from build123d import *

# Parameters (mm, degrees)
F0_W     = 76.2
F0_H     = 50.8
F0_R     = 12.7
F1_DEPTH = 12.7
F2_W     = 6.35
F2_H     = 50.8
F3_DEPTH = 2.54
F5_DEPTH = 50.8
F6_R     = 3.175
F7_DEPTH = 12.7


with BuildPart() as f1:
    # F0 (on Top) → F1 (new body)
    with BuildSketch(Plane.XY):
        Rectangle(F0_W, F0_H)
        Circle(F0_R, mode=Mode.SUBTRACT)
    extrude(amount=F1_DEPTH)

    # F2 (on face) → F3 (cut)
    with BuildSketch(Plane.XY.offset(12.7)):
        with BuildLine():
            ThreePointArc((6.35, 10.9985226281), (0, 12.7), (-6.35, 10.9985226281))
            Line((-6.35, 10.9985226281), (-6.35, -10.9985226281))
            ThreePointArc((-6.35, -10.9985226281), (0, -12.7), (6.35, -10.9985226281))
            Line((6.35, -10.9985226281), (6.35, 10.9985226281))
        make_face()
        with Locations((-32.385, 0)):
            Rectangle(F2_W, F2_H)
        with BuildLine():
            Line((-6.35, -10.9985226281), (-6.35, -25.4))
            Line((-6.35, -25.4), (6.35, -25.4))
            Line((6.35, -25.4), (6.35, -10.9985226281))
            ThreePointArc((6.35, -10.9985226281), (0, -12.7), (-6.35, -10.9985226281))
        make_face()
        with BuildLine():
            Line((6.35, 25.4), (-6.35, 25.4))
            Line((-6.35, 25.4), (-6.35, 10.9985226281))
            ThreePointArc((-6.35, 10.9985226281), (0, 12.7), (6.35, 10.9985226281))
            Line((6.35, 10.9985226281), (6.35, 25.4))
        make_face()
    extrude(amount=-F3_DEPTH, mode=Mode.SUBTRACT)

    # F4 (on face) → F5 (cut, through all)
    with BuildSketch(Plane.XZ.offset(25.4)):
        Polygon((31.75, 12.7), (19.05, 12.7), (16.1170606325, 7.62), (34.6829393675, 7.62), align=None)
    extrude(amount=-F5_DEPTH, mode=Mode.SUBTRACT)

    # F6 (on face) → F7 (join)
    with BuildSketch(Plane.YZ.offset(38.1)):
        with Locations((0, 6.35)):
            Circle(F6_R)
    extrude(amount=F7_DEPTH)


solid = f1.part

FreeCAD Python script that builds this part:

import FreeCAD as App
import Part
import Sketcher

V = App.Vector
Q = App.Units.Quantity

doc = App.newDocument("Part")
body = doc.addObject("PartDesign::Body", "Body")

# Sketch on XY plane
sketch1 = doc.addObject("Sketcher::SketchObject", "Sketch")
body.addObject(sketch1)
sketch1.AttachmentSupport = (doc.XY_Plane, [""])
sketch1.MapMode = "FlatFace"
sketch1.addGeometry(Part.LineSegment(V(-38, 25, 0), V(-38, -25, 0)), False)
sketch1.addGeometry(Part.LineSegment(V(-38, -25, 0), V(38, -25, 0)), False)
sketch1.addGeometry(Part.LineSegment(V(38, -25, 0), V(38, 25, 0)), False)
sketch1.addGeometry(Part.LineSegment(V(38, 25, 0), V(-38, 25, 0)), False)
sketch1.addGeometry(Part.Circle(V(0, 0, 0), V(0, 0, 1), 13), False)
sketch1.addConstraint(Sketcher.Constraint("Coincident", 0, 2, 1, 1))
sketch1.addConstraint(Sketcher.Constraint("Coincident", 1, 2, 2, 1))
sketch1.addConstraint(Sketcher.Constraint("Coincident", 2, 2, 3, 1))
sketch1.addConstraint(Sketcher.Constraint("Coincident", 3, 2, 0, 1))
sketch1.addConstraint(Sketcher.Constraint("Vertical", 0))
sketch1.addConstraint(Sketcher.Constraint("Horizontal", 1))
sketch1.addConstraint(Sketcher.Constraint("Vertical", 2))
sketch1.addConstraint(Sketcher.Constraint("Horizontal", 3))
sketch1.addConstraint(Sketcher.Constraint("Coincident", 4, 3, -1, 1))
sketch1.addConstraint(Sketcher.Constraint("Symmetric", 0, 2, 2, 2, -1, 1))
sketch1.addConstraint(Sketcher.Constraint("Diameter", 4, Q("1 in")))
sketch1.addConstraint(Sketcher.Constraint("DistanceX", 1, 1, 1, 2, Q("3 in")))
sketch1.addConstraint(Sketcher.Constraint("DistanceY", 0, 2, 0, 1, Q("2 in")))
pad1 = doc.addObject("PartDesign::Pad", "Pad")
body.addObject(pad1)
pad1.Profile = sketch1
pad1.Length = Q("0.5 in")

# Sketch on XY plane
sketch2 = doc.addObject("Sketcher::SketchObject", "Sketch001")
body.addObject(sketch2)
sketch2.AttachmentSupport = (doc.XY_Plane, [""])
sketch2.MapMode = "FlatFace"
sketch2.AttachmentOffset = App.Placement(V(0, 0, 0.5 * 25.4), App.Rotation())
sketch2.addGeometry(Part.LineSegment(V(-6, -25, 0), V(6, -25, 0)), False)
sketch2.addGeometry(Part.LineSegment(V(6, -25, 0), V(6, 25, 0)), False)
sketch2.addGeometry(Part.LineSegment(V(6, 25, 0), V(-6, 25, 0)), False)
sketch2.addGeometry(Part.LineSegment(V(-6, 25, 0), V(-6, -25, 0)), False)
sketch2.addGeometry(Part.LineSegment(V(-36, 25, 0), V(-36, -25, 0)), False)
sketch2.addGeometry(Part.LineSegment(V(-36, -25, 0), V(-29, -25, 0)), False)
sketch2.addGeometry(Part.LineSegment(V(-29, -25, 0), V(-29, 25, 0)), False)
sketch2.addGeometry(Part.LineSegment(V(-29, 25, 0), V(-36, 25, 0)), False)
sketch2.addConstraint(Sketcher.Constraint("Coincident", 0, 2, 1, 1))
sketch2.addConstraint(Sketcher.Constraint("Coincident", 1, 2, 2, 1))
sketch2.addConstraint(Sketcher.Constraint("Coincident", 2, 2, 3, 1))
sketch2.addConstraint(Sketcher.Constraint("Coincident", 3, 2, 0, 1))
sketch2.addConstraint(Sketcher.Constraint("Coincident", 4, 2, 5, 1))
sketch2.addConstraint(Sketcher.Constraint("Coincident", 5, 2, 6, 1))
sketch2.addConstraint(Sketcher.Constraint("Coincident", 6, 2, 7, 1))
sketch2.addConstraint(Sketcher.Constraint("Coincident", 7, 2, 4, 1))
sketch2.addConstraint(Sketcher.Constraint("Horizontal", 0))
sketch2.addConstraint(Sketcher.Constraint("Vertical", 1))
sketch2.addConstraint(Sketcher.Constraint("Horizontal", 2))
sketch2.addConstraint(Sketcher.Constraint("Vertical", 3))
sketch2.addConstraint(Sketcher.Constraint("Vertical", 4))
sketch2.addConstraint(Sketcher.Constraint("Horizontal", 5))
sketch2.addConstraint(Sketcher.Constraint("Vertical", 6))
sketch2.addConstraint(Sketcher.Constraint("Horizontal", 7))
sketch2.addConstraint(Sketcher.Constraint("Symmetric", 0, 2, 2, 2, -1, 1))
sketch2.addConstraint(Sketcher.Constraint("Horizontal", 3, 2, 4, 2))
sketch2.addConstraint(Sketcher.Constraint("Horizontal", 2, 2, 6, 2))
sketch2.addConstraint(Sketcher.Constraint("DistanceY", 1, 1, 1, 2, Q("2 in")))
sketch2.addConstraint(Sketcher.Constraint("DistanceX", 0, 1, 0, 2, Q("0.5 in")))
sketch2.addConstraint(Sketcher.Constraint("DistanceX", 5, 1, 5, 2, Q("0.25 in")))
sketch2.addConstraint(Sketcher.Constraint("DistanceX", 4, 2, -1, 1, Q("1.4 in")))
pocket1 = doc.addObject("PartDesign::Pocket", "Pocket")
body.addObject(pocket1)
pocket1.Profile = sketch2
pocket1.Length = Q("0.1 in")

# Sketch on XZ plane
sketch3 = doc.addObject("Sketcher::SketchObject", "Sketch002")
body.addObject(sketch3)
sketch3.AttachmentSupport = (doc.XZ_Plane, [""])
sketch3.MapMode = "FlatFace"
sketch3.AttachmentOffset = App.Placement(V(0, 0, 1 * 25.4), App.Rotation())
sketch3.addGeometry(Part.LineSegment(V(32, 13, 0), V(19, 13, 0)), False)
sketch3.addGeometry(Part.LineSegment(V(19, 13, 0), V(16, 8, 0)), False)
sketch3.addGeometry(Part.LineSegment(V(16, 8, 0), V(35, 8, 0)), False)
sketch3.addGeometry(Part.LineSegment(V(35, 8, 0), V(32, 13, 0)), False)
sketch3.addConstraint(Sketcher.Constraint("Coincident", 0, 2, 1, 1))
sketch3.addConstraint(Sketcher.Constraint("Coincident", 1, 2, 2, 1))
sketch3.addConstraint(Sketcher.Constraint("Coincident", 2, 2, 3, 1))
sketch3.addConstraint(Sketcher.Constraint("Coincident", 3, 2, 0, 1))
sketch3.addConstraint(Sketcher.Constraint("Horizontal", 0))
sketch3.addConstraint(Sketcher.Constraint("Horizontal", 2))
sketch3.addConstraint(Sketcher.Constraint("Equal", 1, 3))
sketch3.addConstraint(Sketcher.Constraint("DistanceX", 0, 2, 0, 1, Q("0.5 in")))
sketch3.addConstraint(Sketcher.Constraint("Angle", 1, Q("-120 deg")))
sketch3.addConstraint(Sketcher.Constraint("DistanceY", -1, 1, 0, 2, Q("0.5 in")))
sketch3.addConstraint(Sketcher.Constraint("DistanceY", -1, 1, 1, 2, Q("0.3 in")))
sketch3.addConstraint(Sketcher.Constraint("DistanceX", -1, 1, 0, 2, Q("0.75 in")))
pocket2 = doc.addObject("PartDesign::Pocket", "Pocket001")
body.addObject(pocket2)
pocket2.Profile = sketch3
pocket2.Type = "ThroughAll"

# Sketch on YZ plane
sketch4 = doc.addObject("Sketcher::SketchObject", "Sketch003")
body.addObject(sketch4)
sketch4.AttachmentSupport = (doc.YZ_Plane, [""])
sketch4.MapMode = "FlatFace"
sketch4.AttachmentOffset = App.Placement(V(0, 0, 1.5 * 25.4), App.Rotation())
sketch4.addGeometry(Part.Circle(V(0, 6.3, 0), V(0, 0, 1), 3.2), False)
sketch4.addConstraint(Sketcher.Constraint("PointOnObject", 0, 3, -2))
sketch4.addConstraint(Sketcher.Constraint("Diameter", 0, Q("0.25 in")))
sketch4.addConstraint(Sketcher.Constraint("DistanceY", -1, 1, 0, 3, Q("0.25 in")))
pad2 = doc.addObject("PartDesign::Pad", "Pad001")
body.addObject(pad2)
pad2.Profile = sketch4
pad2.Length = Q("0.5 in")

doc.recompute()
